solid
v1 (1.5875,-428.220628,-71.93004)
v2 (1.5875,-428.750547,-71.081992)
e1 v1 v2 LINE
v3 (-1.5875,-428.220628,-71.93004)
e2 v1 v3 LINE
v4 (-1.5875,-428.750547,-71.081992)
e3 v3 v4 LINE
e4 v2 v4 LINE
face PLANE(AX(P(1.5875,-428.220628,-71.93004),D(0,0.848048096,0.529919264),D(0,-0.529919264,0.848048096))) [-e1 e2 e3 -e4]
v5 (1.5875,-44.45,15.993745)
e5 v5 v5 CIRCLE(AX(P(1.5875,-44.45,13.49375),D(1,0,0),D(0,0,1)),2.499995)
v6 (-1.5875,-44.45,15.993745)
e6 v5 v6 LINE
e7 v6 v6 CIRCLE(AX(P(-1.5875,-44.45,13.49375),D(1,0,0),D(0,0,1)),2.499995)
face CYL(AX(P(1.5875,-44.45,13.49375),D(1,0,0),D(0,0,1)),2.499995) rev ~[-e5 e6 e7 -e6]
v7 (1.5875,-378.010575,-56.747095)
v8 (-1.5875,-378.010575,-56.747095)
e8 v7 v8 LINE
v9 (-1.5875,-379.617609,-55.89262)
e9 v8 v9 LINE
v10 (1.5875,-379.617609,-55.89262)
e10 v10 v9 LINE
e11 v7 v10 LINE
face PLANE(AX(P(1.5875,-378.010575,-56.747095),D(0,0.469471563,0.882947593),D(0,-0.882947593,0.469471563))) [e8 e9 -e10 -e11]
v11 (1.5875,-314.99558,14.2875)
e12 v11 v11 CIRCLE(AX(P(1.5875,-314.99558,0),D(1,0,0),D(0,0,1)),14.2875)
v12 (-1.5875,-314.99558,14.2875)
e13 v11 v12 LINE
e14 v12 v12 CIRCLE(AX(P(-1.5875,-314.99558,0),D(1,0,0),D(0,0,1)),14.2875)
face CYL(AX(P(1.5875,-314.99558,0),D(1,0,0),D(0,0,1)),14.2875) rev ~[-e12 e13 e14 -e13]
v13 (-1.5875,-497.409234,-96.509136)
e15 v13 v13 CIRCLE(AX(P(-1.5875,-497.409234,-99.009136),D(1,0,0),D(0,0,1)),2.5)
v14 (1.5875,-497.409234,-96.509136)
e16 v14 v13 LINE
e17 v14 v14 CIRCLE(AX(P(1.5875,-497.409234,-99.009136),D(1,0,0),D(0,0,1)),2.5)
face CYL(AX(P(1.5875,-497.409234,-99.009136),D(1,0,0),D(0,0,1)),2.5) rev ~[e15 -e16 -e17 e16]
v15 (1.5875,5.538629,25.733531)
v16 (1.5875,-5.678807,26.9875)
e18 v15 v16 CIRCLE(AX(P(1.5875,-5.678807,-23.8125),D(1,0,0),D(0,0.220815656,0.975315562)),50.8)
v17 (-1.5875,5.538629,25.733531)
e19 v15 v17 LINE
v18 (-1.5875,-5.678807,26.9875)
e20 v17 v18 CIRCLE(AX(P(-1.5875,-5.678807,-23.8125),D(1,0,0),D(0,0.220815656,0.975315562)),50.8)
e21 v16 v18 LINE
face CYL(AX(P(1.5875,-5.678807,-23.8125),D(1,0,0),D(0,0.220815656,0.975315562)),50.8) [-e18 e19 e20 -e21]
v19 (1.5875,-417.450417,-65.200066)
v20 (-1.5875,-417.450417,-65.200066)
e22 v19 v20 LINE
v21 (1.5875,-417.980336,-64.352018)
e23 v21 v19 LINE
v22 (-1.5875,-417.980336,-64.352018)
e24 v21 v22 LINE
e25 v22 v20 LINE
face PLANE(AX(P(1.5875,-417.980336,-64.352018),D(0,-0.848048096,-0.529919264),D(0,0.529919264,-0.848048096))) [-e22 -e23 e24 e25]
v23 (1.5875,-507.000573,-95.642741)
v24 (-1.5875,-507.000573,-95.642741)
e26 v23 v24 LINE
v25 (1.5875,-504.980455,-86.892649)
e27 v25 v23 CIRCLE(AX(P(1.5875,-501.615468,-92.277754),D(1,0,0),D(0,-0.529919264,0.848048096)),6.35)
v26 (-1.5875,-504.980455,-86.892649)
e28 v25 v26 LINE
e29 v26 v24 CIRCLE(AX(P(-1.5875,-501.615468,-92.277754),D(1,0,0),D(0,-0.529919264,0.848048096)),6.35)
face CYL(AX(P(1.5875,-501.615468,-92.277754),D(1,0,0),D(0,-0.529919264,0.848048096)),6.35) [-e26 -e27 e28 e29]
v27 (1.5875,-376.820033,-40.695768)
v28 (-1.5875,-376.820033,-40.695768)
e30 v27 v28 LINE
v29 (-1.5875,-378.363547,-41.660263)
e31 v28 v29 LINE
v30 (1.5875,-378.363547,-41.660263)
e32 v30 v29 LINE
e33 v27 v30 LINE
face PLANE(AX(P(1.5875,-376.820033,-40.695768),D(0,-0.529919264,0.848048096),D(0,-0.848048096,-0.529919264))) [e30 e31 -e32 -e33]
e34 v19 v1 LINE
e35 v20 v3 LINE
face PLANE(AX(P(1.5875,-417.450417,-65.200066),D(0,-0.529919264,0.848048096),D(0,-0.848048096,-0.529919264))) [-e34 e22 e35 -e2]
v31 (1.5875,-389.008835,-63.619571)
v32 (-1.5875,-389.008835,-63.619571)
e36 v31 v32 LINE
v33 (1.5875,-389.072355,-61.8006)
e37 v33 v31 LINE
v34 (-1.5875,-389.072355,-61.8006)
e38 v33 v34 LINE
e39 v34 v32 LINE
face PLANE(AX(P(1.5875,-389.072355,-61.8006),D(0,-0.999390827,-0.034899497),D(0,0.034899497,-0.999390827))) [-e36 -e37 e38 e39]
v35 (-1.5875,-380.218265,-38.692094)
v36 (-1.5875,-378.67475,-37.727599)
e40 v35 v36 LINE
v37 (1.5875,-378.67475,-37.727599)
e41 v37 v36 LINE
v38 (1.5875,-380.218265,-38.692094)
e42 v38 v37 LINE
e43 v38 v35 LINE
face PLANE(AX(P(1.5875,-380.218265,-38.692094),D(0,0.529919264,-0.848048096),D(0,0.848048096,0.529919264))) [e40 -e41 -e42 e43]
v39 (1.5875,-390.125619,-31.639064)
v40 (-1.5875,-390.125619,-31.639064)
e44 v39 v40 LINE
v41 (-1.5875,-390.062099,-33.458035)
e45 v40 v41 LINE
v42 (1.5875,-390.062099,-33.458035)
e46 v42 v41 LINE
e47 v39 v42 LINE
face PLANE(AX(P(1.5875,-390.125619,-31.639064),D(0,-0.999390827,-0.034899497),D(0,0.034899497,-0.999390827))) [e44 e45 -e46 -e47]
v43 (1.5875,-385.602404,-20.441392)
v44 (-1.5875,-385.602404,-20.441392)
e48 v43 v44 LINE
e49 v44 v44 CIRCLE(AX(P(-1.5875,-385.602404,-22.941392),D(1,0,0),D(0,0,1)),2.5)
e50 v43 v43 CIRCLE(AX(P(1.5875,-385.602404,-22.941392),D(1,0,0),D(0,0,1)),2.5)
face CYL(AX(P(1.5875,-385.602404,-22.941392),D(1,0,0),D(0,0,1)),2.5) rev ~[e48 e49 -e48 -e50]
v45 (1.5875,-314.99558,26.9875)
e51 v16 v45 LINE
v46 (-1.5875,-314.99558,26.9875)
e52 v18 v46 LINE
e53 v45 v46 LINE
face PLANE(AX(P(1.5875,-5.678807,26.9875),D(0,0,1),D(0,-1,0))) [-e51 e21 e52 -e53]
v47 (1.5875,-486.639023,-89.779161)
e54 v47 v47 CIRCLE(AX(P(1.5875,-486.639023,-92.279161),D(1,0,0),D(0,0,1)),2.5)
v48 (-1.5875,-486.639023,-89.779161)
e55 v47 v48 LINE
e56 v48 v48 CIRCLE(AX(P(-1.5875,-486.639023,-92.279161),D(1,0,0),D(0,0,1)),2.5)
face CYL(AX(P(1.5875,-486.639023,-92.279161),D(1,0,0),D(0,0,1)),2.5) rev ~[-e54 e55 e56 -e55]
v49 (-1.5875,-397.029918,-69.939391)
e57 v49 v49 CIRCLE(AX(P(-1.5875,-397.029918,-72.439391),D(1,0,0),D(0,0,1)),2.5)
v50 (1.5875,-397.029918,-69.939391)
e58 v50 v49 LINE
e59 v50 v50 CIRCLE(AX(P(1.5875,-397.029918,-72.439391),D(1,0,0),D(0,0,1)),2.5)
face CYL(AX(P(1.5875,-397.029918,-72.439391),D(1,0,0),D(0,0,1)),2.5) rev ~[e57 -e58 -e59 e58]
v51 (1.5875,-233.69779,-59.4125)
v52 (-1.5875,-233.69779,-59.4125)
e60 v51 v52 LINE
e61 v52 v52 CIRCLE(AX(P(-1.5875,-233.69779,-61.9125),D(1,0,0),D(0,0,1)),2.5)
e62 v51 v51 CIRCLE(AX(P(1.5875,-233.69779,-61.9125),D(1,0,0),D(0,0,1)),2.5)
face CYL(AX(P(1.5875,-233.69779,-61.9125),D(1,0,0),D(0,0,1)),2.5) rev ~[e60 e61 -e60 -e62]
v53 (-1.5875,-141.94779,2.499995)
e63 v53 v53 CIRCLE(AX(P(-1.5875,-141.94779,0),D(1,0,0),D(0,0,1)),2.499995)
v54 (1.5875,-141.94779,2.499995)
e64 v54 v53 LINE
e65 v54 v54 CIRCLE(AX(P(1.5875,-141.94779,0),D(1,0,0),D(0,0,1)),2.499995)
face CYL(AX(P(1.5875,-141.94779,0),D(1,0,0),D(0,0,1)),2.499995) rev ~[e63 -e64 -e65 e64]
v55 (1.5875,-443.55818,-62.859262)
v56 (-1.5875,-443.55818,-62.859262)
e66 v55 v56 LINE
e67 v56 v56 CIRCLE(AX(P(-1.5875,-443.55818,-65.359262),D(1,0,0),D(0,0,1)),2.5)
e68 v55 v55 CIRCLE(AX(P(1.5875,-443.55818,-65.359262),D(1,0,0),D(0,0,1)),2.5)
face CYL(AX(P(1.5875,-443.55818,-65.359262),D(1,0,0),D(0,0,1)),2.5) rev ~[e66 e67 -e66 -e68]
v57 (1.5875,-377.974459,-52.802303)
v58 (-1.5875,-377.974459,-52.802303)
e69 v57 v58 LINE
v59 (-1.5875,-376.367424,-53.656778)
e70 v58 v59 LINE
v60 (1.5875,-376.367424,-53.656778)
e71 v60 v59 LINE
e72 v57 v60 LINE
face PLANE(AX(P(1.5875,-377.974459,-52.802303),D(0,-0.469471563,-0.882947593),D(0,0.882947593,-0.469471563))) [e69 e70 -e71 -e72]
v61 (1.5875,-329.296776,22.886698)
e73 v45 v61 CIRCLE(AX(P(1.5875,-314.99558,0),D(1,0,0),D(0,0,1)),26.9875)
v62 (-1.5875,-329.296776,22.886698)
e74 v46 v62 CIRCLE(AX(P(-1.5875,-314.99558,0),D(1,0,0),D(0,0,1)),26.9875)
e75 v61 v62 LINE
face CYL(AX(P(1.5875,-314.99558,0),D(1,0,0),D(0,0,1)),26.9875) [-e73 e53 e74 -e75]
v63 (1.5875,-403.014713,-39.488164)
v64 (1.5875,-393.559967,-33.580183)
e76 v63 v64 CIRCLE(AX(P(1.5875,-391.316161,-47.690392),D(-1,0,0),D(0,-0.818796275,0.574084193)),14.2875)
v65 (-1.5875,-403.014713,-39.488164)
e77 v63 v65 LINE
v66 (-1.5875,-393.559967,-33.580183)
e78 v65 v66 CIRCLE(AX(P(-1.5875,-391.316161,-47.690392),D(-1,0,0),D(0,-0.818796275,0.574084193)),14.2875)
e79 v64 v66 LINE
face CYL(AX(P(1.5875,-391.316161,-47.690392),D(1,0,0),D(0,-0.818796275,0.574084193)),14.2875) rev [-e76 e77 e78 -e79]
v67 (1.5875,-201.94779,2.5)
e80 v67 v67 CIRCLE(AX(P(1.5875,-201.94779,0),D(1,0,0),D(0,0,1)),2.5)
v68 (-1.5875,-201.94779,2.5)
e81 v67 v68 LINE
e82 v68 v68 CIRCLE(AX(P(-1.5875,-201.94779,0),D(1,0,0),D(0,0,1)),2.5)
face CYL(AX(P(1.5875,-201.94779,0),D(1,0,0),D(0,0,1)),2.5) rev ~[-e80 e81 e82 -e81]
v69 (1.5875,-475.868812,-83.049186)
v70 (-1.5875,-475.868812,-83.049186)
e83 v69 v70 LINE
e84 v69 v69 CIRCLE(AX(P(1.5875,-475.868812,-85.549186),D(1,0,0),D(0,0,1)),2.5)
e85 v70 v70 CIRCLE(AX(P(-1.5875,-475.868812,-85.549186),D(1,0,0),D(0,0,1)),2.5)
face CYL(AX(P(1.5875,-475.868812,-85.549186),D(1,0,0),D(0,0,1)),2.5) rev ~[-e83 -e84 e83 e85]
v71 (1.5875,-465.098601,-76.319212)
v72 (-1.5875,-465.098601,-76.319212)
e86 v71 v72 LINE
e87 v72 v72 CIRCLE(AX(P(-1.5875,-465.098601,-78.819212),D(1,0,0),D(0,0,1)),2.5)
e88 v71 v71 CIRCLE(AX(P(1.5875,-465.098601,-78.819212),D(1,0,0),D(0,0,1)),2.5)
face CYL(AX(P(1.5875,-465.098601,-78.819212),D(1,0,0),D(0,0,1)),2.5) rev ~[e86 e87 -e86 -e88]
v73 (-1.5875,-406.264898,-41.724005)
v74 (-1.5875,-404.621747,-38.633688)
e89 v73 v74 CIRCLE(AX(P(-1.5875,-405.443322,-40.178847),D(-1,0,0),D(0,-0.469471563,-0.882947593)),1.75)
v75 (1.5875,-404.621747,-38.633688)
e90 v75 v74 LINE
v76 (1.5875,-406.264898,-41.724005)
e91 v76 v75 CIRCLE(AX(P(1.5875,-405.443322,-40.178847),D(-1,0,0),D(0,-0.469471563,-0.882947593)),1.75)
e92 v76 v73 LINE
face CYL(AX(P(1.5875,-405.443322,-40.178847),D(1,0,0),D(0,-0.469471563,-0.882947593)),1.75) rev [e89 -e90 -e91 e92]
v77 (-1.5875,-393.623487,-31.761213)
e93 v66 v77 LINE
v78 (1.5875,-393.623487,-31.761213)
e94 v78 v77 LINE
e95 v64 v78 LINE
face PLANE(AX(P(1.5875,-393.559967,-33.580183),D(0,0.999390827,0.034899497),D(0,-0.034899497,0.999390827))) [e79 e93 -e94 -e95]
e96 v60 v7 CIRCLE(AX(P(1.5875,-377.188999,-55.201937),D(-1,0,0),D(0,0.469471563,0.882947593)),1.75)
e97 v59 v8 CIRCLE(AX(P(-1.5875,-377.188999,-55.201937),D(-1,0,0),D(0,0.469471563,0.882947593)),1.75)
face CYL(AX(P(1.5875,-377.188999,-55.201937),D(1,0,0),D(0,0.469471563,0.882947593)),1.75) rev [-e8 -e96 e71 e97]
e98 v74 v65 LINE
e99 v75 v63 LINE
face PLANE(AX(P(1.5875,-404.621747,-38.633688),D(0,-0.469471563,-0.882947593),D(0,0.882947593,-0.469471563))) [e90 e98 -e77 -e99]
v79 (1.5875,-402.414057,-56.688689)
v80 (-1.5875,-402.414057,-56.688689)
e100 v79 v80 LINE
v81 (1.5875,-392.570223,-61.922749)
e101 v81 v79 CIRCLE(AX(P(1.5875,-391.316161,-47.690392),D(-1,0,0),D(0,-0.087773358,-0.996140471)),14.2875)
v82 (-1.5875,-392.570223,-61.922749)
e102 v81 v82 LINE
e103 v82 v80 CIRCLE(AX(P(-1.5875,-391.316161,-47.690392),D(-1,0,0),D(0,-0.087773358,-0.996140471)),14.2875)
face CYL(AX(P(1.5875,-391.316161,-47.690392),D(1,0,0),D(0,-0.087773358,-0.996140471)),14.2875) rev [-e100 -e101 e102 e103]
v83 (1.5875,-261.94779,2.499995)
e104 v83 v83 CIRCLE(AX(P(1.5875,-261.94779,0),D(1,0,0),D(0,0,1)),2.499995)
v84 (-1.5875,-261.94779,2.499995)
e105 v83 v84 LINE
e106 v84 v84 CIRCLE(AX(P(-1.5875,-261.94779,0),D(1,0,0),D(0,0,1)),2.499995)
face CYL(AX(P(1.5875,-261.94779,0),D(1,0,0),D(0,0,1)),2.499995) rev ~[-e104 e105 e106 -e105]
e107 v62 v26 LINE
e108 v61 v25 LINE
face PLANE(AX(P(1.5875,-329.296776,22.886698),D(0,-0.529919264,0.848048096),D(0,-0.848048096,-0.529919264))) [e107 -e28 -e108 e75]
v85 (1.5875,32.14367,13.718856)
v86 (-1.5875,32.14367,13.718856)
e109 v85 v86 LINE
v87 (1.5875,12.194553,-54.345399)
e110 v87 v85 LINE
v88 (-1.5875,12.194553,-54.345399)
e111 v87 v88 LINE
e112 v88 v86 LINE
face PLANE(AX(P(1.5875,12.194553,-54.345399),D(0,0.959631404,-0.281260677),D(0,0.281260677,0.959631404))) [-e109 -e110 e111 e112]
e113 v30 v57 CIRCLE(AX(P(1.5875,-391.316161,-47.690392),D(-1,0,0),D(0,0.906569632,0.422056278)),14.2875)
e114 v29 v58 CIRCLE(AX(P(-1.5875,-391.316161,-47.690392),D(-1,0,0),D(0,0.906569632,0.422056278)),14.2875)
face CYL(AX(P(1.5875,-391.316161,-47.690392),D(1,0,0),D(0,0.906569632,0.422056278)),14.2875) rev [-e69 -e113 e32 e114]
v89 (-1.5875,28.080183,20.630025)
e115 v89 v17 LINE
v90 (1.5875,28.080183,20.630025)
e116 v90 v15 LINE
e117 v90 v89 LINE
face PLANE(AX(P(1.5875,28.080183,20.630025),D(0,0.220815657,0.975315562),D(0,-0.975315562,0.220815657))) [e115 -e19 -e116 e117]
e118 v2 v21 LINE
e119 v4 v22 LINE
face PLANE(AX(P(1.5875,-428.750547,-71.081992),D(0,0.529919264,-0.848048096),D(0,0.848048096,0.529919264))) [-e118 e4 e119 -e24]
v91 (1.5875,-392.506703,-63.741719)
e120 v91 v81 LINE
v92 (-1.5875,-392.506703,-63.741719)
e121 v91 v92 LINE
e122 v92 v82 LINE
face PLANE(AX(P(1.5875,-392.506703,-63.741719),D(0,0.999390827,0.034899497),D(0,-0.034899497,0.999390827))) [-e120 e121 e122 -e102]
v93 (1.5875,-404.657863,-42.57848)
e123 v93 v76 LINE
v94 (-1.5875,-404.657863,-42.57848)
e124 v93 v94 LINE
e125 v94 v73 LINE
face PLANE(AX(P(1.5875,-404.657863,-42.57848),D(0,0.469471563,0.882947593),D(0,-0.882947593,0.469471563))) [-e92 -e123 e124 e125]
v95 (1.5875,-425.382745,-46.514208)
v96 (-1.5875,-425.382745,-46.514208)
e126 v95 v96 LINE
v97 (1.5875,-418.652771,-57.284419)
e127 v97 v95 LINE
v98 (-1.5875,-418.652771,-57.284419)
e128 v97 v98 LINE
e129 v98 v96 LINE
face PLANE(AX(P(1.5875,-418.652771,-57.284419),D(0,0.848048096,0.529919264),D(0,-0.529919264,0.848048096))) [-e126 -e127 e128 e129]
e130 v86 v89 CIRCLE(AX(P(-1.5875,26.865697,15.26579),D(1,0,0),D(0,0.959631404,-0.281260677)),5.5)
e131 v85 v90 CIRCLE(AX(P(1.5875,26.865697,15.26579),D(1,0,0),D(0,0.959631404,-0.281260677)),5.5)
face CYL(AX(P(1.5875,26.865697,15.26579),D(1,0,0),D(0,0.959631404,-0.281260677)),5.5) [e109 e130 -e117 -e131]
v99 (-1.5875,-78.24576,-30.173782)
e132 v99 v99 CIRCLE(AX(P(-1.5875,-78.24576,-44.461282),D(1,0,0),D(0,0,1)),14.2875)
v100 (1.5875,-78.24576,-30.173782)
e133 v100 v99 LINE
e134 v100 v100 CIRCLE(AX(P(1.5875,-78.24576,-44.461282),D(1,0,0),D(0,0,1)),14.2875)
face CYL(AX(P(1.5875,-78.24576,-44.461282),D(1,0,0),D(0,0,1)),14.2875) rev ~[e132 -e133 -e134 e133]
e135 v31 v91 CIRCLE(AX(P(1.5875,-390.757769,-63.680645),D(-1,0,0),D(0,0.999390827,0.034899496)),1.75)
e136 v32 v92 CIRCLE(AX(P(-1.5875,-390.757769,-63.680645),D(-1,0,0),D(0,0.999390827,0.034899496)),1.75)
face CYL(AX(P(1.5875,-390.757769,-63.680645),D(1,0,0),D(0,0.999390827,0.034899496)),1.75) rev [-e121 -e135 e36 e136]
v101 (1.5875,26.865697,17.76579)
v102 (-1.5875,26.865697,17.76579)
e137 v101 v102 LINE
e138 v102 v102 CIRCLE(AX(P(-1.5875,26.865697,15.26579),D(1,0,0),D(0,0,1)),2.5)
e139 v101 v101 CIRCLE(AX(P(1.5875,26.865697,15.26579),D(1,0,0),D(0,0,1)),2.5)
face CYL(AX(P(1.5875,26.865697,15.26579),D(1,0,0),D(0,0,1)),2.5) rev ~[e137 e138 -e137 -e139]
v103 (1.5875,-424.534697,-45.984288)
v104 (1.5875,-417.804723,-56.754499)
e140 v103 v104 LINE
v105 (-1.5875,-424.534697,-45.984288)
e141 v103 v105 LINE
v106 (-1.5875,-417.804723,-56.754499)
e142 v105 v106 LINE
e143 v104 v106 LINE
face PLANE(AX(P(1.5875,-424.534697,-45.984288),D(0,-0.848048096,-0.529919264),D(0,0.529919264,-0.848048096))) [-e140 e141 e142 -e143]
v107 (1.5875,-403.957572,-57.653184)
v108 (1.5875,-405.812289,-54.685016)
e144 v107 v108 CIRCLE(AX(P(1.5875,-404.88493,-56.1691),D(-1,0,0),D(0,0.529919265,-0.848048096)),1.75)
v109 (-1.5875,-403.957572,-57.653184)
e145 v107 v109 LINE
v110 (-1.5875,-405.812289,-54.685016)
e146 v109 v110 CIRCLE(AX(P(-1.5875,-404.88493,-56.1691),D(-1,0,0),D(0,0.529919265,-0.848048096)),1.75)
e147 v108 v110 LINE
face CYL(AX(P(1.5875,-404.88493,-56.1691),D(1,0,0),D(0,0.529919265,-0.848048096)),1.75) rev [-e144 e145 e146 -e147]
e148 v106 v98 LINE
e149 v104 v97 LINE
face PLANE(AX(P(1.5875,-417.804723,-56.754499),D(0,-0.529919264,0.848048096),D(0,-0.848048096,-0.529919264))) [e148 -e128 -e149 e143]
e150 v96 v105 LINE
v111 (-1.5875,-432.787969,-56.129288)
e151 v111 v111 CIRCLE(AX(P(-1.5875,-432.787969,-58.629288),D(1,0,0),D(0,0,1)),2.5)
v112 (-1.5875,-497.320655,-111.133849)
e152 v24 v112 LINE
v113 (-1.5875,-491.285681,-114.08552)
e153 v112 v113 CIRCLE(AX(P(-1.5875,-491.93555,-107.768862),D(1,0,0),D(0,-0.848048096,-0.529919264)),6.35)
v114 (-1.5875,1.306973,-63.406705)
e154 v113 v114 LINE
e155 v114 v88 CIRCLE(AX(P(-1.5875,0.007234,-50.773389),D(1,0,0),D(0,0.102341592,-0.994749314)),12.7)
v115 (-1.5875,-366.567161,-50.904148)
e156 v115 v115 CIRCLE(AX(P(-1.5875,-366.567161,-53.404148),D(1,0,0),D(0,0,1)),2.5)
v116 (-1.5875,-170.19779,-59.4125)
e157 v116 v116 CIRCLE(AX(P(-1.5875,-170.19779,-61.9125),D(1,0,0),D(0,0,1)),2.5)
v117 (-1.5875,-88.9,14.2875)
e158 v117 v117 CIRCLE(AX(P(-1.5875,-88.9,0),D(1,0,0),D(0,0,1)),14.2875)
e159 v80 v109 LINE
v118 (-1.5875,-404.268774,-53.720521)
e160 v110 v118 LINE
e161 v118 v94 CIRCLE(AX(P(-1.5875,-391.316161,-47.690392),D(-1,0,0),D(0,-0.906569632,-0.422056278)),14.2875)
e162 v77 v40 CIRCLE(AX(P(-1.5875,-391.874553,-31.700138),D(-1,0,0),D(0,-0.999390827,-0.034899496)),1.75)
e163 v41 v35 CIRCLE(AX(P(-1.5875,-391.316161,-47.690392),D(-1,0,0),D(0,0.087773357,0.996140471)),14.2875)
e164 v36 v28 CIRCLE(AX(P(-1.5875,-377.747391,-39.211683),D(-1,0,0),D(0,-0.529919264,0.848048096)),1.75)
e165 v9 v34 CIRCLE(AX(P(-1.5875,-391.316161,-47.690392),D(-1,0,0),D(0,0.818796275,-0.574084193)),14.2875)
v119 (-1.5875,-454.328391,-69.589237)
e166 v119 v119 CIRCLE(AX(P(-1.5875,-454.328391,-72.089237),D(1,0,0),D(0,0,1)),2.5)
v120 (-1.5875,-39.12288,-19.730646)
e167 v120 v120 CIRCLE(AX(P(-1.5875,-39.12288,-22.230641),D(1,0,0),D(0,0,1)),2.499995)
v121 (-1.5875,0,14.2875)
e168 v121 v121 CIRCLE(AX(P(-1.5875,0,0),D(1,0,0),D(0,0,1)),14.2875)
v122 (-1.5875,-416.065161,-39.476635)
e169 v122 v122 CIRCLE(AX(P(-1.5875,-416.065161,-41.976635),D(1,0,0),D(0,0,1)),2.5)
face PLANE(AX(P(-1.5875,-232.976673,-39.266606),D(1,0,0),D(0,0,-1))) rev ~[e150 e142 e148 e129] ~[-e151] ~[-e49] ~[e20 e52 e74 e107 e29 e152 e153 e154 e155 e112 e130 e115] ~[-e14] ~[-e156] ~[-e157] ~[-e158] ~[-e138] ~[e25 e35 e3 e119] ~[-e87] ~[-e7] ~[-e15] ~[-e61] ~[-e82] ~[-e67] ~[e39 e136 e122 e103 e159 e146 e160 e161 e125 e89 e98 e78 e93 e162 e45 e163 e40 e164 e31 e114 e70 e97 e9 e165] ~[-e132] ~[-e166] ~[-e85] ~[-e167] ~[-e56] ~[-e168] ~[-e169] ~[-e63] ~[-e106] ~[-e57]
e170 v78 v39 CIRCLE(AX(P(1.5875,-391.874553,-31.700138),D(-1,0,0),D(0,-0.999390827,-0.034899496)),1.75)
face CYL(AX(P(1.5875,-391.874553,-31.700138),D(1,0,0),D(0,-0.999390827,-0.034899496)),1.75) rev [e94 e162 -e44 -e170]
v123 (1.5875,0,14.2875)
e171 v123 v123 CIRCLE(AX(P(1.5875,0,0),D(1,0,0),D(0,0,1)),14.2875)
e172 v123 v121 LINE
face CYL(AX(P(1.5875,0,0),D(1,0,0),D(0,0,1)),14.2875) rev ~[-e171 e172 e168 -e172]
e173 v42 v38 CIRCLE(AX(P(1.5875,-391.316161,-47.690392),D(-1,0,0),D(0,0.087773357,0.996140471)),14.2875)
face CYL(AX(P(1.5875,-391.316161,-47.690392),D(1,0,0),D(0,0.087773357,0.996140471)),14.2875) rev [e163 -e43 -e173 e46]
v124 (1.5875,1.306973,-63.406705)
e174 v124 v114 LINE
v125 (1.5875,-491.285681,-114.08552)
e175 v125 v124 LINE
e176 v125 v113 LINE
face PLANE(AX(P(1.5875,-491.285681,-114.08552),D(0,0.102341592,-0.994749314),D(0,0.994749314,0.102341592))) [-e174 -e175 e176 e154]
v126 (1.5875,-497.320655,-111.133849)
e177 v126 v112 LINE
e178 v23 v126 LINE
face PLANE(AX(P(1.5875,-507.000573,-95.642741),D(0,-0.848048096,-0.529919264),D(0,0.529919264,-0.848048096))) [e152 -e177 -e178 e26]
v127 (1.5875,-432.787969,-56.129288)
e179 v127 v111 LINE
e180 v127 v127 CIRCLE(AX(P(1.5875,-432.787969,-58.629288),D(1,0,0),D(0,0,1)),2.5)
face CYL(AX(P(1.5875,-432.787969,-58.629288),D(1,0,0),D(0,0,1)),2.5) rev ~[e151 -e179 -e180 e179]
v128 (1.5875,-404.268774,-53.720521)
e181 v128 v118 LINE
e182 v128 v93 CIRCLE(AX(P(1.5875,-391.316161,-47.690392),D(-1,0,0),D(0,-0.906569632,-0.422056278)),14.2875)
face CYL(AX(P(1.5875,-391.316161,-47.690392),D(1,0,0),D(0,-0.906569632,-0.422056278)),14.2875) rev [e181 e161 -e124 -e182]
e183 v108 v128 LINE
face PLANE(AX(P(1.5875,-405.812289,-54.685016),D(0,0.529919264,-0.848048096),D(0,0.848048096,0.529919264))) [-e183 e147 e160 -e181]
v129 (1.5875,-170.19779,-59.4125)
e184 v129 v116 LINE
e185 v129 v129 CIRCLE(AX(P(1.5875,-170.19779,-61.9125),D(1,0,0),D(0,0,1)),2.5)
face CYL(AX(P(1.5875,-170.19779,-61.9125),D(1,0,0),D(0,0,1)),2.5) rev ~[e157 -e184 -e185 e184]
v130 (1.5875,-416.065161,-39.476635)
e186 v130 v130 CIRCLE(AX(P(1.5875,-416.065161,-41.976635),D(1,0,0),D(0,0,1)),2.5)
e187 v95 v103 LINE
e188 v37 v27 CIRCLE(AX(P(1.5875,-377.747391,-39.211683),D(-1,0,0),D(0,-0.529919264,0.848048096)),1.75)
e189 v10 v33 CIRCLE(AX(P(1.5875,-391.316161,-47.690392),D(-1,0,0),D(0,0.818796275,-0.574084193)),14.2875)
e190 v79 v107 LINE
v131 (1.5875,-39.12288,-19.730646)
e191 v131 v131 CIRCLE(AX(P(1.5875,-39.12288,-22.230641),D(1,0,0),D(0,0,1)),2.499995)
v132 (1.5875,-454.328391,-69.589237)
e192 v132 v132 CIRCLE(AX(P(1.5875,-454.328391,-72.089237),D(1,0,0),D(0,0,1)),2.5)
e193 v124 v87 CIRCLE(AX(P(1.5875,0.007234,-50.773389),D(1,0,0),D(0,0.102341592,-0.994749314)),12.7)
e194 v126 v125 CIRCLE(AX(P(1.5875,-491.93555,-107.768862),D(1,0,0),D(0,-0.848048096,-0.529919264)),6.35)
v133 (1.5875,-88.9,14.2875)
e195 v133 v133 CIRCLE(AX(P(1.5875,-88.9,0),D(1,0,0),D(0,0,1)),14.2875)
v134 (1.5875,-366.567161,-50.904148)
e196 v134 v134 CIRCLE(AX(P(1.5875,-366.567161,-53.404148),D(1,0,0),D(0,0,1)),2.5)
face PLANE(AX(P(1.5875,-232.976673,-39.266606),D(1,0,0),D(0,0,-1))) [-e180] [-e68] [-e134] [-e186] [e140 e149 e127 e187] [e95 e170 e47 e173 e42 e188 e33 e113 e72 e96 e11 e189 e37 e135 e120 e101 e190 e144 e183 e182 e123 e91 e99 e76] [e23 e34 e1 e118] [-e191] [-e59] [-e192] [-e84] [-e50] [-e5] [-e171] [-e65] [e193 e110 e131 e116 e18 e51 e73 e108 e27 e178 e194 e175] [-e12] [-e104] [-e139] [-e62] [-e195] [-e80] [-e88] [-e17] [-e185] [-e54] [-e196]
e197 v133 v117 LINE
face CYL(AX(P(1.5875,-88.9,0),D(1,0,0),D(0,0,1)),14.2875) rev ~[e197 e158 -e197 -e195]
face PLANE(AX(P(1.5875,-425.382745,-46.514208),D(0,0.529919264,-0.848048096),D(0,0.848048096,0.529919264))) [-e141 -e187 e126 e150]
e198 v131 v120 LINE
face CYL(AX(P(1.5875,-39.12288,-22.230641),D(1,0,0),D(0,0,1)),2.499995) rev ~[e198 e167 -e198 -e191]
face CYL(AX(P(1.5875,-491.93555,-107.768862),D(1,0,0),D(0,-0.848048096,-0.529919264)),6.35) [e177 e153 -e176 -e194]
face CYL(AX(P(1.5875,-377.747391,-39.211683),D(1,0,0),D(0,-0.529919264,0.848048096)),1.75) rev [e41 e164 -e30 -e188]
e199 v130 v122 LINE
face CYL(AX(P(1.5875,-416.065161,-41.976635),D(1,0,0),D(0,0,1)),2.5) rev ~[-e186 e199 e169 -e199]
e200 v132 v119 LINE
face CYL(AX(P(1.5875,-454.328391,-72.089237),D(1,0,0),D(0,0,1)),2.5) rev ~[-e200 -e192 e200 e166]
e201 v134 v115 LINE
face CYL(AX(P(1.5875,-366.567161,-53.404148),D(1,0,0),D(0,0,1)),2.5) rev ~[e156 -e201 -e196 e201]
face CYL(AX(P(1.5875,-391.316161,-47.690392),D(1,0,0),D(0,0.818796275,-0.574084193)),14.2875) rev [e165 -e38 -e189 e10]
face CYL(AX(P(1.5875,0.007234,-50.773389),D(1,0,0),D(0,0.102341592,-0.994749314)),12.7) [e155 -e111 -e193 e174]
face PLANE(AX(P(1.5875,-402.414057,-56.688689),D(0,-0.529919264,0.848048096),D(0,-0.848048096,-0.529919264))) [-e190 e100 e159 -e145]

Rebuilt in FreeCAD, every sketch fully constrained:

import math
import FreeCAD as App
import Part
import Sketcher
Q = App.Units.Quantity

doc = App.newDocument("Part")
body = doc.addObject("PartDesign::Body", "Body")

# Sketch on YZ plane
sketch1 = body.newObject("Sketcher::SketchObject", "Sketch")
sketch1.AttachmentSupport = (doc.getObject("YZ_Plane"), [""])
sketch1.MapMode = "FlatFace"
sketch1.AttachmentOffset = App.Placement(App.Vector(0, 0, 0.0625 * 25.4), App.Rotation())
sketch1.addGeometry(Part.LineSegment(App.Vector(12.194553, -54.345399, 0), App.Vector(32.14367, 13.718856, 0)), False)
sketch1.addGeometry(Part.ArcOfCircle(Part.Circle(App.Vector(26.865697, 15.26579, 0), App.Vector(0, 0, 1), 5.5), math.radians(-16.33546), math.radians(77.243055)), False)
sketch1.addGeometry(Part.LineSegment(App.Vector(28.080183, 20.630025, 0), App.Vector(5.538629, 25.733531, 0)), False)
sketch1.addGeometry(Part.ArcOfCircle(Part.Circle(App.Vector(-5.678807, -23.8125, 0), App.Vector(0, 0, 1), 50.8), math.radians(77.243055), math.radians(90)), False)
sketch1.addGeometry(Part.LineSegment(App.Vector(-5.678807, 26.9875, 0), App.Vector(-314.99558, 26.9875, 0)), False)
sketch1.addGeometry(Part.ArcOfCircle(Part.Circle(App.Vector(-314.99558, 0, 0), App.Vector(0, 0, 1), 26.9875), math.radians(90), math.radians(122)), False)
sketch1.addGeometry(Part.LineSegment(App.Vector(-329.296776, 22.886698, 0), App.Vector(-504.980455, -86.892649, 0)), False)
sketch1.addGeometry(Part.ArcOfCircle(Part.Circle(App.Vector(-501.615468, -92.277754, 0), App.Vector(0, 0, 1), 6.35), math.radians(122), math.radians(212)), False)
sketch1.addGeometry(Part.LineSegment(App.Vector(-507.000573, -95.642741, 0), App.Vector(-497.320655, -111.133849, 0)), False)
sketch1.addGeometry(Part.ArcOfCircle(Part.Circle(App.Vector(-491.93555, -107.768862, 0), App.Vector(0, 0, 1), 6.35), math.radians(-148), math.radians(-84.125974)), False)
sketch1.addGeometry(Part.LineSegment(App.Vector(-491.285681, -114.08552, 0), App.Vector(1.306973, -63.406705, 0)), False)
sketch1.addGeometry(Part.ArcOfCircle(Part.Circle(App.Vector(0.007234, -50.773389, 0), App.Vector(0, 0, 1), 12.7), math.radians(-84.125974), math.radians(-16.33546)), False)
sketch1.addGeometry(Part.Circle(App.Vector(-385.602404, -22.941392, 0), App.Vector(0, 0, 1), 2.5), False)
sketch1.addGeometry(Part.Circle(App.Vector(-314.99558, 0, 0), App.Vector(0, 0, 1), 14.2875), False)
sketch1.addGeometry(Part.Circle(App.Vector(-261.94779, 0, 0), App.Vector(0, 0, 1), 2.499995), False)
sketch1.addGeometry(Part.Circle(App.Vector(-443.55818, -65.359262, 0), App.Vector(0, 0, 1), 2.5), False)
sketch1.addGeometry(Part.Circle(App.Vector(-416.065161, -41.976635, 0), App.Vector(0, 0, 1), 2.5), False)
sketch1.addGeometry(Part.LineSegment(App.Vector(-425.382745, -46.514208, 0), App.Vector(-424.534697, -45.984288, 0)), False)
sketch1.addGeometry(Part.LineSegment(App.Vector(-424.534697, -45.984288, 0), App.Vector(-417.804723, -56.754499, 0)), False)
sketch1.addGeometry(Part.LineSegment(App.Vector(-417.804723, -56.754499, 0), App.Vector(-418.652771, -57.284419, 0)), False)
sketch1.addGeometry(Part.LineSegment(App.Vector(-418.652771, -57.284419, 0), App.Vector(-425.382745, -46.514208, 0)), False)
sketch1.addGeometry(Part.ArcOfCircle(Part.Circle(App.Vector(-377.747391, -39.211683, 0), App.Vector(0, 0, 1), 1.75), math.radians(-58), math.radians(122)), False)
sketch1.addGeometry(Part.LineSegment(App.Vector(-376.820033, -40.695768, 0), App.Vector(-378.363547, -41.660263, 0)), False)
sketch1.addGeometry(Part.ArcOfCircle(Part.Circle(App.Vector(-391.316161, -47.690392, 0), App.Vector(0, 0, 1), 14.2875), math.radians(-20.964477), math.radians(24.964477)), False)
sketch1.addGeometry(Part.LineSegment(App.Vector(-377.974459, -52.802303, 0), App.Vector(-376.367424, -53.656778, 0)), False)
sketch1.addGeometry(Part.ArcOfCircle(Part.Circle(App.Vector(-377.188999, -55.201937, 0), App.Vector(0, 0, 1), 1.75), math.radians(-118), math.radians(62)), False)
sketch1.addGeometry(Part.LineSegment(App.Vector(-378.010575, -56.747095, 0), App.Vector(-379.617609, -55.89262, 0)), False)
sketch1.addGeometry(Part.ArcOfCircle(Part.Circle(App.Vector(-391.316161, -47.690392, 0), App.Vector(0, 0, 1), 14.2875), math.radians(-80.964477), math.radians(-35.035523)), False)
sketch1.addGeometry(Part.LineSegment(App.Vector(-389.072355, -61.8006, 0), App.Vector(-389.008835, -63.619571, 0)), False)
sketch1.addGeometry(Part.ArcOfCircle(Part.Circle(App.Vector(-390.757769, -63.680645, 0), App.Vector(0, 0, 1), 1.75), math.radians(-178), math.radians(2)), False)
sketch1.addGeometry(Part.LineSegment(App.Vector(-392.506703, -63.741719, 0), App.Vector(-392.570223, -61.922749, 0)), False)
sketch1.addGeometry(Part.ArcOfCircle(Part.Circle(App.Vector(-391.316161, -47.690392, 0), App.Vector(0, 0, 1), 14.2875), math.radians(-140.964477), math.radians(-95.035523)), False)
sketch1.addGeometry(Part.LineSegment(App.Vector(-402.414057, -56.688689, 0), App.Vector(-403.957572, -57.653184, 0)), False)
sketch1.addGeometry(Part.ArcOfCircle(Part.Circle(App.Vector(-404.88493, -56.1691, 0), App.Vector(0, 0, 1), 1.75), math.radians(122), math.radians(302)), False)
sketch1.addGeometry(Part.LineSegment(App.Vector(-405.812289, -54.685016, 0), App.Vector(-404.268774, -53.720521, 0)), False)
sketch1.addGeometry(Part.ArcOfCircle(Part.Circle(App.Vector(-391.316161, -47.690392, 0), App.Vector(0, 0, 1), 14.2875), math.radians(159.035523), math.radians(204.964477)), False)
sketch1.addGeometry(Part.LineSegment(App.Vector(-404.657863, -42.57848, 0), App.Vector(-406.264898, -41.724005, 0)), False)
sketch1.addGeometry(Part.ArcOfCircle(Part.Circle(App.Vector(-405.443322, -40.178847, 0), App.Vector(0, 0, 1), 1.75), math.radians(62), math.radians(242)), False)
sketch1.addGeometry(Part.LineSegment(App.Vector(-404.621747, -38.633688, 0), App.Vector(-403.014713, -39.488164, 0)), False)
sketch1.addGeometry(Part.ArcOfCircle(Part.Circle(App.Vector(-391.316161, -47.690392, 0), App.Vector(0, 0, 1), 14.2875), math.radians(99.035523), math.radians(144.964477)), False)
sketch1.addGeometry(Part.LineSegment(App.Vector(-393.559967, -33.580183, 0), App.Vector(-393.623487, -31.761213, 0)), False)
sketch1.addGeometry(Part.ArcOfCircle(Part.Circle(App.Vector(-391.874553, -31.700138, 0), App.Vector(0, 0, 1), 1.75), math.radians(2), math.radians(182)), False)
sketch1.addGeometry(Part.LineSegment(App.Vector(-390.125619, -31.639064, 0), App.Vector(-390.062099, -33.458035, 0)), False)
sketch1.addGeometry(Part.ArcOfCircle(Part.Circle(App.Vector(-391.316161, -47.690392, 0), App.Vector(0, 0, 1), 14.2875), math.radians(39.035523), math.radians(84.964477)), False)
sketch1.addGeometry(Part.LineSegment(App.Vector(-380.218265, -38.692094, 0), App.Vector(-378.67475, -37.727599, 0)), False)
sketch1.addGeometry(Part.Circle(App.Vector(-432.787969, -58.629288, 0), App.Vector(0, 0, 1), 2.5), False)
sketch1.addGeometry(Part.LineSegment(App.Vector(-417.980336, -64.352018, 0), App.Vector(-417.450417, -65.200066, 0)), False)
sketch1.addGeometry(Part.LineSegment(App.Vector(-417.450417, -65.200066, 0), App.Vector(-428.220628, -71.93004, 0)), False)
sketch1.addGeometry(Part.LineSegment(App.Vector(-428.220628, -71.93004, 0), App.Vector(-428.750547, -71.081992, 0)), False)
sketch1.addGeometry(Part.LineSegment(App.Vector(-428.750547, -71.081992, 0), App.Vector(-417.980336, -64.352018, 0)), False)
sketch1.addGeometry(Part.Circle(App.Vector(-475.868812, -85.549186, 0), App.Vector(0, 0, 1), 2.5), False)
sketch1.addGeometry(Part.Circle(App.Vector(-454.328391, -72.089237, 0), App.Vector(0, 0, 1), 2.5), False)
sketch1.addGeometry(Part.Circle(App.Vector(-465.098601, -78.819212, 0), App.Vector(0, 0, 1), 2.5), False)
sketch1.addGeometry(Part.Circle(App.Vector(-486.639023, -92.279161, 0), App.Vector(0, 0, 1), 2.5), False)
sketch1.addGeometry(Part.Circle(App.Vector(-497.409234, -99.009136, 0), App.Vector(0, 0, 1), 2.5), False)
sketch1.addGeometry(Part.Circle(App.Vector(-397.029918, -72.439391, 0), App.Vector(0, 0, 1), 2.5), False)
sketch1.addGeometry(Part.Circle(App.Vector(-366.567161, -53.404148, 0), App.Vector(0, 0, 1), 2.5), False)
sketch1.addGeometry(Part.Circle(App.Vector(-201.94779, 0, 0), App.Vector(0, 0, 1), 2.5), False)
sketch1.addGeometry(Part.Circle(App.Vector(-141.94779, 0, 0), App.Vector(0, 0, 1), 2.499995), False)
sketch1.addGeometry(Part.Circle(App.Vector(-44.45, 13.49375, 0), App.Vector(0, 0, 1), 2.499995), False)
sketch1.addGeometry(Part.Circle(App.Vector(-88.9, 0, 0), App.Vector(0, 0, 1), 14.2875), False)
sketch1.addGeometry(Part.Circle(App.Vector(26.865697, 15.26579, 0), App.Vector(0, 0, 1), 2.5), False)
sketch1.addGeometry(Part.Circle(App.Vector(0, 0, 0), App.Vector(0, 0, 1), 14.2875), False)
sketch1.addGeometry(Part.Circle(App.Vector(-39.12288, -22.230641, 0), App.Vector(0, 0, 1), 2.499995), False)
sketch1.addGeometry(Part.Circle(App.Vector(-233.69779, -61.9125, 0), App.Vector(0, 0, 1), 2.5), False)
sketch1.addGeometry(Part.Circle(App.Vector(-170.19779, -61.9125, 0), App.Vector(0, 0, 1), 2.5), False)
sketch1.addGeometry(Part.Circle(App.Vector(-78.24576, -44.461282, 0), App.Vector(0, 0, 1), 14.2875), False)
sketch1.addConstraint(Sketcher.Constraint("Tangent", 0, 2, 1, 1))
sketch1.addConstraint(Sketcher.Constraint("Tangent", 1, 2, 2, 1))
sketch1.addConstraint(Sketcher.Constraint("Tangent", 2, 2, 3, 1))
sketch1.addConstraint(Sketcher.Constraint("Tangent", 3, 2, 4, 1))
sketch1.addConstraint(Sketcher.Constraint("Tangent", 4, 2, 5, 1))
sketch1.addConstraint(Sketcher.Constraint("Tangent", 5, 2, 6, 1))
sketch1.addConstraint(Sketcher.Constraint("Tangent", 6, 2, 7, 1))
sketch1.addConstraint(Sketcher.Constraint("Tangent", 7, 2, 8, 1))
sketch1.addConstraint(Sketcher.Constraint("Tangent", 8, 2, 9, 1))
sketch1.addConstraint(Sketcher.Constraint("Tangent", 9, 2, 10, 1))
sketch1.addConstraint(Sketcher.Constraint("Tangent", 10, 2, 11, 1))
sketch1.addConstraint(Sketcher.Constraint("Tangent", 11, 2, 0, 1))
sketch1.addConstraint(Sketcher.Constraint("Coincident", 17, 2, 18, 1))
sketch1.addConstraint(Sketcher.Constraint("Coincident", 18, 2, 19, 1))
sketch1.addConstraint(Sketcher.Constraint("Coincident", 19, 2, 20, 1))
sketch1.addConstraint(Sketcher.Constraint("Coincident", 20, 2, 17, 1))
sketch1.addConstraint(Sketcher.Constraint("Tangent", 21, 1, 22, 1))
sketch1.addConstraint(Sketcher.Constraint("Coincident", 22, 2, 23, 2))
sketch1.addConstraint(Sketcher.Constraint("Coincident", 23, 1, 24, 1))
sketch1.addConstraint(Sketcher.Constraint("Tangent", 24, 2, 25, 2))
sketch1.addConstraint(Sketcher.Constraint("Tangent", 25, 1, 26, 1))
sketch1.addConstraint(Sketcher.Constraint("Coincident", 26, 2, 27, 2))
sketch1.addConstraint(Sketcher.Constraint("Coincident", 27, 1, 28, 1))
sketch1.addConstraint(Sketcher.Constraint("Tangent", 28, 2, 29, 2))
sketch1.addConstraint(Sketcher.Constraint("Tangent", 29, 1, 30, 1))
sketch1.addConstraint(Sketcher.Constraint("Coincident", 30, 2, 31, 2))
sketch1.addConstraint(Sketcher.Constraint("Coincident", 31, 1, 32, 1))
sketch1.addConstraint(Sketcher.Constraint("Tangent", 32, 2, 33, 2))
sketch1.addConstraint(Sketcher.Constraint("Tangent", 33, 1, 34, 1))
sketch1.addConstraint(Sketcher.Constraint("Coincident", 34, 2, 35, 2))
sketch1.addConstraint(Sketcher.Constraint("Coincident", 35, 1, 36, 1))
sketch1.addConstraint(Sketcher.Constraint("Tangent", 36, 2, 37, 2))
sketch1.addConstraint(Sketcher.Constraint("Tangent", 37, 1, 38, 1))
sketch1.addConstraint(Sketcher.Constraint("Coincident", 38, 2, 39, 2))
sketch1.addConstraint(Sketcher.Constraint("Coincident", 39, 1, 40, 1))
sketch1.addConstraint(Sketcher.Constraint("Tangent", 40, 2, 41, 2))
sketch1.addConstraint(Sketcher.Constraint("Tangent", 41, 1, 42, 1))
sketch1.addConstraint(Sketcher.Constraint("Coincident", 42, 2, 43, 2))
sketch1.addConstraint(Sketcher.Constraint("Coincident", 43, 1, 44, 1))
sketch1.addConstraint(Sketcher.Constraint("Tangent", 44, 2, 21, 2))
sketch1.addConstraint(Sketcher.Constraint("Coincident", 46, 2, 47, 1))
sketch1.addConstraint(Sketcher.Constraint("Coincident", 47, 2, 48, 1))
sketch1.addConstraint(Sketcher.Constraint("Coincident", 48, 2, 49, 1))
sketch1.addConstraint(Sketcher.Constraint("Coincident", 49, 2, 46, 1))
sketch1.addConstraint(Sketcher.Constraint("Horizontal", 4))
sketch1.addConstraint(Sketcher.Constraint("Coincident", 62, 3, -1, 1))
sketch1.addConstraint(Sketcher.Constraint("Coincident", 13, 3, 5, 3))
sketch1.addConstraint(Sketcher.Constraint("Coincident", 27, 3, 23, 3))
sketch1.addConstraint(Sketcher.Constraint("Coincident", 31, 3, 23, 3))
sketch1.addConstraint(Sketcher.Constraint("Coincident", 35, 3, 23, 3))
sketch1.addConstraint(Sketcher.Constraint("Coincident", 39, 3, 23, 3))
sketch1.addConstraint(Sketcher.Constraint("Coincident", 43, 3, 23, 3))
sketch1.addConstraint(Sketcher.Constraint("Coincident", 61, 3, 1, 3))
sketch1.addConstraint(Sketcher.Constraint("Equal", 7, 9))
sketch1.addConstraint(Sketcher.Constraint("Equal", 12, 15))
sketch1.addConstraint(Sketcher.Constraint("Equal", 15, 16))
sketch1.addConstraint(Sketcher.Constraint("Equal", 13, 23))
sketch1.addConstraint(Sketcher.Constraint("Equal", 21, 25))
sketch1.addConstraint(Sketcher.Constraint("Equal", 23, 27))
sketch1.addConstraint(Sketcher.Constraint("Equal", 25, 29))
sketch1.addConstraint(Sketcher.Constraint("Equal", 27, 31))
sketch1.addConstraint(Sketcher.Constraint("Equal", 29, 33))
sketch1.addConstraint(Sketcher.Constraint("Equal", 31, 35))
sketch1.addConstraint(Sketcher.Constraint("Equal", 33, 37))
sketch1.addConstraint(Sketcher.Constraint("Equal", 35, 39))
sketch1.addConstraint(Sketcher.Constraint("Equal", 37, 41))
sketch1.addConstraint(Sketcher.Constraint("Equal", 39, 43))
sketch1.addConstraint(Sketcher.Constraint("Equal", 16, 45))
sketch1.addConstraint(Sketcher.Constraint("Equal", 45, 50))
sketch1.addConstraint(Sketcher.Constraint("Equal", 50, 51))
sketch1.addConstraint(Sketcher.Constraint("Equal", 51, 52))
sketch1.addConstraint(Sketcher.Constraint("Equal", 52, 53))
sketch1.addConstraint(Sketcher.Constraint("Equal", 53, 54))
sketch1.addConstraint(Sketcher.Constraint("Equal", 54, 55))
sketch1.addConstraint(Sketcher.Constraint("Equal", 55, 56))
sketch1.addConstraint(Sketcher.Constraint("Equal", 56, 57))
sketch1.addConstraint(Sketcher.Constraint("Equal", 14, 58))
sketch1.addConstraint(Sketcher.Constraint("Equal", 58, 59))
sketch1.addConstraint(Sketcher.Constraint("Equal", 43, 60))
sketch1.addConstraint(Sketcher.Constraint("Equal", 57, 61))
sketch1.addConstraint(Sketcher.Constraint("Equal", 60, 62))
sketch1.addConstraint(Sketcher.Constraint("Equal", 59, 63))
sketch1.addConstraint(Sketcher.Constraint("Equal", 61, 64))
sketch1.addConstraint(Sketcher.Constraint("Equal", 64, 65))
sketch1.addConstraint(Sketcher.Constraint("Equal", 62, 66))
sketch1.addConstraint(Sketcher.Constraint("PointOnObject", 5, 3, -1))
sketch1.addConstraint(Sketcher.Constraint("PointOnObject", 14, 3, -1))
sketch1.addConstraint(Sketcher.Constraint("PointOnObject", 57, 3, -1))
sketch1.addConstraint(Sketcher.Constraint("PointOnObject", 58, 3, -1))
sketch1.addConstraint(Sketcher.Constraint("PointOnObject", 60, 3, -1))
sketch1.addConstraint(Sketcher.Constraint("Perpendicular", 6, 8))
sketch1.addConstraint(Sketcher.Constraint("Perpendicular", 8, 17))
sketch1.addConstraint(Sketcher.Constraint("Perpendicular", 17, 18))
sketch1.addConstraint(Sketcher.Constraint("Perpendicular", 18, 19))
sketch1.addConstraint(Sketcher.Constraint("Perpendicular", 19, 20))
sketch1.addConstraint(Sketcher.Constraint("Perpendicular", 20, 22))
sketch1.addConstraint(Sketcher.Constraint("Parallel", 24, 26))
sketch1.addConstraint(Sketcher.Constraint("Parallel", 28, 30))
sketch1.addConstraint(Sketcher.Constraint("Parallel", 22, 32))
sketch1.addConstraint(Sketcher.Constraint("Parallel", 32, 34))
sketch1.addConstraint(Sketcher.Constraint("Parallel", 26, 36))
sketch1.addConstraint(Sketcher.Constraint("Parallel", 36, 38))
sketch1.addConstraint(Sketcher.Constraint("Parallel", 30, 40))
sketch1.addConstraint(Sketcher.Constraint("Parallel", 40, 42))
sketch1.addConstraint(Sketcher.Constraint("Parallel", 34, 44))
sketch1.addConstraint(Sketcher.Constraint("Perpendicular", 44, 46))
sketch1.addConstraint(Sketcher.Constraint("Perpendicular", 46, 47))
sketch1.addConstraint(Sketcher.Constraint("Perpendicular", 47, 48))
sketch1.addConstraint(Sketcher.Constraint("Perpendicular", 48, 49))
sketch1.addConstraint(Sketcher.Constraint("Horizontal", 64, 3, 65, 3))
sketch1.addConstraint(Sketcher.Constraint("Equal", 22, 24))
sketch1.addConstraint(Sketcher.Constraint("Equal", 24, 26))
sketch1.addConstraint(Sketcher.Constraint("Equal", 26, 28))
sketch1.addConstraint(Sketcher.Constraint("Equal", 28, 30))
sketch1.addConstraint(Sketcher.Constraint("Equal", 30, 32))
sketch1.addConstraint(Sketcher.Constraint("Equal", 32, 34))
sketch1.addConstraint(Sketcher.Constraint("Equal", 34, 36))
sketch1.addConstraint(Sketcher.Constraint("Equal", 36, 38))
sketch1.addConstraint(Sketcher.Constraint("Equal", 38, 40))
sketch1.addConstraint(Sketcher.Constraint("Equal", 40, 42))
sketch1.addConstraint(Sketcher.Constraint("Equal", 42, 44))
sketch1.addConstraint(Sketcher.Constraint("Equal", 19, 46))
sketch1.addConstraint(Sketcher.Constraint("Equal", 20, 47))
sketch1.addConstraint(Sketcher.Constraint("Radius", 3, Q("2 in")))
sketch1.addConstraint(Sketcher.Constraint("Radius", 11, Q("0.5 in")))
sketch1.addConstraint(Sketcher.Constraint("Radius", 7, Q("0.25 in")))
sketch1.addConstraint(Sketcher.Constraint("Diameter", 13, Q("1.125 in")))
sketch1.addConstraint(Sketcher.Constraint("Angle", 6, Q("-148 deg")))
sketch1.addConstraint(Sketcher.Constraint("Angle", 24, Q("-28 deg")))
sketch1.addConstraint(Sketcher.Constraint("Angle", 28, Q("-88 deg")))
sketch1.addConstraint(Sketcher.Constraint("Radius", 5, Q("1.0625 in")))
sketch1.addConstraint(Sketcher.Constraint("Distance", 18, Q("0.5 in")))
sketch1.addConstraint(Sketcher.Constraint("DistanceX", 60, 3, -1, 1, Q("3.5 in")))
sketch1.addConstraint(Sketcher.Constraint("Diameter", 12, 5.0))
sketch1.addConstraint(Sketcher.Constraint("DistanceX", 59, 3, -1, 1, Q("1.75 in")))
sketch1.addConstraint(Sketcher.Constraint("Radius", 1, 5.5))
sketch1.addConstraint(Sketcher.Constraint("Radius", 21, 1.75))
sketch1.addConstraint(Sketcher.Constraint("Distance", 6, Q("8.156 in")))
sketch1.addConstraint(Sketcher.Constraint("Diameter", 14, 4.99999))
sketch1.addConstraint(Sketcher.Constraint("DistanceY", -1, 1, 59, 3, Q("0.53125 in")))
sketch1.addConstraint(Sketcher.Constraint("DistanceY", 64, 3, -1, 1, Q("2.4375 in")))
sketch1.addConstraint(Sketcher.Constraint("Distance", 0, 70.927499))
sketch1.addConstraint(Sketcher.Constraint("Distance", 17, 1.0))
sketch1.addConstraint(Sketcher.Constraint("DistanceX", 25, 3, -1, 1, 377.188999))
sketch1.addConstraint(Sketcher.Constraint("DistanceY", 33, 3, -1, 1, 56.1691))
sketch1.addConstraint(Sketcher.Constraint("DistanceX", 52, 3, -1, 1, 465.098601))
sketch1.addConstraint(Sketcher.Constraint("DistanceY", 11, 2, -1, 1, 54.345399))
sketch1.addConstraint(Sketcher.Constraint("DistanceY", 18, 2, -1, 1, 56.754499))
sketch1.addConstraint(Sketcher.Constraint("DistanceY", 27, 1, -1, 1, 61.8006))
sketch1.addConstraint(Sketcher.Constraint("Distance", 8, 18.266779))
sketch1.addConstraint(Sketcher.Constraint("DistanceX", 4, 2, 4, 1, 309.316774))
sketch1.addConstraint(Sketcher.Constraint("DistanceY", -1, 1, 1, 3, 15.26579))
sketch1.addConstraint(Sketcher.Constraint("DistanceX", 5, 3, -1, 1, 314.99558))
sketch1.addConstraint(Sketcher.Constraint("DistanceX", 14, 3, -1, 1, 261.94779))
sketch1.addConstraint(Sketcher.Constraint("DistanceX", 15, 3, -1, 1, 443.55818))
sketch1.addConstraint(Sketcher.Constraint("DistanceX", 16, 3, -1, 1, 416.065161))
sketch1.addConstraint(Sketcher.Constraint("DistanceX", 45, 3, -1, 1, 432.787969))
sketch1.addConstraint(Sketcher.Constraint("DistanceX", 51, 3, -1, 1, 454.328391))
sketch1.addConstraint(Sketcher.Constraint("DistanceY", 52, 3, -1, 1, 78.819212))
sketch1.addConstraint(Sketcher.Constraint("DistanceY", 53, 3, -1, 1, 92.279161))
sketch1.addConstraint(Sketcher.Constraint("DistanceY", 55, 3, -1, 1, 72.439391))
sketch1.addConstraint(Sketcher.Constraint("DistanceX", 56, 3, -1, 1, 366.567161))
sketch1.addConstraint(Sketcher.Constraint("DistanceY", 56, 3, -1, 1, 53.404148))
sketch1.addConstraint(Sketcher.Constraint("DistanceX", 57, 3, -1, 1, 201.94779))
sketch1.addConstraint(Sketcher.Constraint("DistanceX", 58, 3, -1, 1, 141.94779))
sketch1.addConstraint(Sketcher.Constraint("DistanceX", 63, 3, -1, 1, 39.12288))
sketch1.addConstraint(Sketcher.Constraint("DistanceY", 63, 3, -1, 1, 22.230641))
sketch1.addConstraint(Sketcher.Constraint("DistanceX", 64, 3, -1, 1, 233.69779))
sketch1.addConstraint(Sketcher.Constraint("DistanceX", 65, 3, -1, 1, 170.19779))
sketch1.addConstraint(Sketcher.Constraint("DistanceX", 66, 3, -1, 1, 78.24576))
sketch1.addConstraint(Sketcher.Constraint("DistanceY", 66, 3, -1, 1, 44.461282))
sketch1.addConstraint(Sketcher.Constraint("DistanceX", -1, 1, 0, 2, 32.14367))
sketch1.addConstraint(Sketcher.Constraint("DistanceX", 19, 2, -1, 1, 418.652771))
sketch1.addConstraint(Sketcher.Constraint("DistanceY", 47, 2, -1, 1, 71.93004))
sketch1.addConstraint(Sketcher.Constraint("DistanceX", 12, 3, -1, 1, 385.602404))
sketch1.addConstraint(Sketcher.Constraint("DistanceY", 12, 3, -1, 1, 22.941392))
sketch1.addConstraint(Sketcher.Constraint("DistanceY", 15, 3, -1, 1, 65.359262))
sketch1.addConstraint(Sketcher.Constraint("DistanceY", 16, 3, -1, 1, 41.976635))
sketch1.addConstraint(Sketcher.Constraint("DistanceY", 45, 3, -1, 1, 58.629288))
sketch1.addConstraint(Sketcher.Constraint("DistanceX", 50, 3, -1, 1, 475.868812))
sketch1.addConstraint(Sketcher.Constraint("DistanceY", 50, 3, -1, 1, 85.549186))
sketch1.addConstraint(Sketcher.Constraint("DistanceY", 51, 3, -1, 1, 72.089237))
sketch1.addConstraint(Sketcher.Constraint("DistanceX", 53, 3, -1, 1, 486.639023))
sketch1.addConstraint(Sketcher.Constraint("DistanceX", 54, 3, -1, 1, 497.409234))
sketch1.addConstraint(Sketcher.Constraint("DistanceY", 54, 3, -1, 1, 99.009136))
sketch1.addConstraint(Sketcher.Constraint("DistanceX", 55, 3, -1, 1, 397.029918))
sketch1.addConstraint(Sketcher.Constraint("DistanceX", 46, 2, -1, 1, 417.450417))
pad1 = body.newObject("PartDesign::Pad", "Pad")
pad1.Profile = sketch1
pad1.Length = Q("0.125 in")
pad1.Reversed = True

doc.recompute()
